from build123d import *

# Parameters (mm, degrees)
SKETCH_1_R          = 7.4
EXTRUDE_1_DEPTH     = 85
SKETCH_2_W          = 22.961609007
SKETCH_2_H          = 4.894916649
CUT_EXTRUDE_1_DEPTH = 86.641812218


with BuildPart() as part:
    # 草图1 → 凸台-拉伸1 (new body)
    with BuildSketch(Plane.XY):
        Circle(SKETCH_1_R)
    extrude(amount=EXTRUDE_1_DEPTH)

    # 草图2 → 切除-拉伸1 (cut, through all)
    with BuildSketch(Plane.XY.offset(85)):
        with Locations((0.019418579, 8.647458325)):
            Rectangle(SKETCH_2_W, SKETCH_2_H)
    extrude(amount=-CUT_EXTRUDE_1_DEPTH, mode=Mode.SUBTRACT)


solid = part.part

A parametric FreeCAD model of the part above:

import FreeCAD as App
import Part
import Sketcher
Q = App.Units.Quantity

doc = App.newDocument("Part")
body = doc.addObject("PartDesign::Body", "Body")

# Sketch on XY plane
sketch1 = body.newObject("Sketcher::SketchObject", "Sketch")
sketch1.AttachmentSupport = (doc.getObject("XY_Plane"), [""])
sketch1.MapMode = "FlatFace"
sketch1.addGeometry(Part.Circle(App.Vector(0, 0, 0), App.Vector(0, 0, 1), 7), False)
sketch1.addConstraint([
    Sketcher.Constraint("Coincident", 0, 3, -1, 1),
    Sketcher.Constraint("Diameter", 0, Q("14.8 mm")),
])
pad1 = body.newObject("PartDesign::Pad", "Pad")
pad1.Profile = sketch1
pad1.Length = 85

# Sketch on XY plane
sketch2 = body.newObject("Sketcher::SketchObject", "Sketch001")
sketch2.AttachmentSupport = (doc.getObject("XY_Plane"), [""])
sketch2.MapMode = "FlatFace"
sketch2.AttachmentOffset = App.Placement(App.Vector(0, 0, 85), App.Rotation())
sketch2.addGeometry([
    Part.LineSegment(App.Vector(-11.5, 11.1, 0), App.Vector(-11.5, 6.2, 0)),
    Part.LineSegment(App.Vector(-11.5, 6.2, 0), App.Vector(11.5, 6.2, 0)),
    Part.LineSegment(App.Vector(11.5, 6.2, 0), App.Vector(11.5, 11.1, 0)),
    Part.LineSegment(App.Vector(11.5, 11.1, 0), App.Vector(-11.5, 11.1, 0)),
], False)
sketch2.addConstraint([
    Sketcher.Constraint("Coincident", 0, 2, 1, 1),
    Sketcher.Constraint("Coincident", 1, 2, 2, 1),
    Sketcher.Constraint("Coincident", 2, 2, 3, 1),
    Sketcher.Constraint("Coincident", 3, 2, 0, 1),
    Sketcher.Constraint("Vertical", 0),
    Sketcher.Constraint("Horizontal", 1),
    Sketcher.Constraint("Vertical", 2),
    Sketcher.Constraint("Horizontal", 3),
    Sketcher.Constraint("DistanceY", -1, 1, 0, 2, Q("6.2 mm")),
    Sketcher.Constraint("DistanceX", 1, 1, 1, 2, Q("22.961609 mm")),
    Sketcher.Constraint("DistanceY", 0, 2, 0, 1, Q("4.894917 mm")),
    Sketcher.Constraint("DistanceX", 0, 2, -1, 1, Q("11.461386 mm")),
])
pocket1 = body.newObject("PartDesign::Pocket", "Pocket")
pocket1.Profile = sketch2
pocket1.Type = "ThroughAll"

doc.recompute()
